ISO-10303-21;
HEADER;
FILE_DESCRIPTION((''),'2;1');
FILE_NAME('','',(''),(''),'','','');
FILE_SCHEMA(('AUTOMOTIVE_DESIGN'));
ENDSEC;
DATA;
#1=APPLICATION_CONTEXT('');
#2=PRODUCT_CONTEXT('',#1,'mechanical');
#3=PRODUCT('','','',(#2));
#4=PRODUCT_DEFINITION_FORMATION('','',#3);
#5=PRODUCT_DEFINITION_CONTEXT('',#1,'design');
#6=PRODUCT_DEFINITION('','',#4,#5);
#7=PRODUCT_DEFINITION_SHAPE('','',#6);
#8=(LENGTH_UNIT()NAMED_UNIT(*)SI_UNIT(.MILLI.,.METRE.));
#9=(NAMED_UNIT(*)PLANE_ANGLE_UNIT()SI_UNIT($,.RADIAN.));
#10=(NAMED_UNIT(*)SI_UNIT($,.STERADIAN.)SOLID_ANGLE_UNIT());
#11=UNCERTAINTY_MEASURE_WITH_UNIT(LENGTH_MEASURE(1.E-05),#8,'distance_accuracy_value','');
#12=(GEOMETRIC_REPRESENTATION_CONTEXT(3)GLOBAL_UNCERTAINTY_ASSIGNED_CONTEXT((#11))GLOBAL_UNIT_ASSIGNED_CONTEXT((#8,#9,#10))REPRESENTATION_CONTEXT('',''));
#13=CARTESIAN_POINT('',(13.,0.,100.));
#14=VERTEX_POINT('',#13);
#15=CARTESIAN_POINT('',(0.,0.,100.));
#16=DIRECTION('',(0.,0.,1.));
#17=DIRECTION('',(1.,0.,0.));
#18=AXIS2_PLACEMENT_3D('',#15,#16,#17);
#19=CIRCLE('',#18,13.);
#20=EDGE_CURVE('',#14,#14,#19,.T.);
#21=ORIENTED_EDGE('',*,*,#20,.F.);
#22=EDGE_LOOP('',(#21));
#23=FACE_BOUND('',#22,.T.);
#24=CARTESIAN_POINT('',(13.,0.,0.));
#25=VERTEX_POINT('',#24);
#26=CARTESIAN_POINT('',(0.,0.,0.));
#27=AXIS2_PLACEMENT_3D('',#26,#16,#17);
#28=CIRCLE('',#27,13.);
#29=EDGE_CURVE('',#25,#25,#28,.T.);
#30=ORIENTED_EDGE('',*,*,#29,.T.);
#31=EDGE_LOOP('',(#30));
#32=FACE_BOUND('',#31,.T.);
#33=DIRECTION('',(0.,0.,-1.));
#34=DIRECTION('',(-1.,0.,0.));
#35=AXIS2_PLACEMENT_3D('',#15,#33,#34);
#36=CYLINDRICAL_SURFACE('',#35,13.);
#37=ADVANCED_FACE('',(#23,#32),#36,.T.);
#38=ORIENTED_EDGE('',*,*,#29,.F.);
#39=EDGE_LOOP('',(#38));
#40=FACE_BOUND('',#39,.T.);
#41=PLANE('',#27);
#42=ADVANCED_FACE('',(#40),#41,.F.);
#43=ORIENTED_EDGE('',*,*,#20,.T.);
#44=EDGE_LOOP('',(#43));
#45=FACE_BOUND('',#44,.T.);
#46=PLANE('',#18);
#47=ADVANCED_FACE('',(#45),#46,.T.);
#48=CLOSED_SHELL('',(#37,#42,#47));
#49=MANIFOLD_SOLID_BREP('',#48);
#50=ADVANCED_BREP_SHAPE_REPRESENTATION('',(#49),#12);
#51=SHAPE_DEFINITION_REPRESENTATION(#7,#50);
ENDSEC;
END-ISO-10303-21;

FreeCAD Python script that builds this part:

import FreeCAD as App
import Part
import Sketcher

V = App.Vector
Q = App.Units.Quantity

doc = App.newDocument("Part")
body = doc.addObject("PartDesign::Body", "Body")

sketch1 = body.newObject("Sketcher::SketchObject", "Sketch")
sketch1.AttachmentSupport = (doc.getObject("XY_Plane"), [""])
sketch1.MapMode = "FlatFace"
sketch1.addGeometry(Part.Circle(V(0, 0, 0), V(0, 0, 1), 13), False)
sketch1.addConstraint([
    Sketcher.Constraint("Coincident", 0, 3, -1, 1),
    Sketcher.Constraint("Diameter", 0, Q("26 mm")),
])
pad1 = body.newObject("PartDesign::Pad", "Pad")
pad1.Profile = sketch1
pad1.Length = 100

doc.recompute()
